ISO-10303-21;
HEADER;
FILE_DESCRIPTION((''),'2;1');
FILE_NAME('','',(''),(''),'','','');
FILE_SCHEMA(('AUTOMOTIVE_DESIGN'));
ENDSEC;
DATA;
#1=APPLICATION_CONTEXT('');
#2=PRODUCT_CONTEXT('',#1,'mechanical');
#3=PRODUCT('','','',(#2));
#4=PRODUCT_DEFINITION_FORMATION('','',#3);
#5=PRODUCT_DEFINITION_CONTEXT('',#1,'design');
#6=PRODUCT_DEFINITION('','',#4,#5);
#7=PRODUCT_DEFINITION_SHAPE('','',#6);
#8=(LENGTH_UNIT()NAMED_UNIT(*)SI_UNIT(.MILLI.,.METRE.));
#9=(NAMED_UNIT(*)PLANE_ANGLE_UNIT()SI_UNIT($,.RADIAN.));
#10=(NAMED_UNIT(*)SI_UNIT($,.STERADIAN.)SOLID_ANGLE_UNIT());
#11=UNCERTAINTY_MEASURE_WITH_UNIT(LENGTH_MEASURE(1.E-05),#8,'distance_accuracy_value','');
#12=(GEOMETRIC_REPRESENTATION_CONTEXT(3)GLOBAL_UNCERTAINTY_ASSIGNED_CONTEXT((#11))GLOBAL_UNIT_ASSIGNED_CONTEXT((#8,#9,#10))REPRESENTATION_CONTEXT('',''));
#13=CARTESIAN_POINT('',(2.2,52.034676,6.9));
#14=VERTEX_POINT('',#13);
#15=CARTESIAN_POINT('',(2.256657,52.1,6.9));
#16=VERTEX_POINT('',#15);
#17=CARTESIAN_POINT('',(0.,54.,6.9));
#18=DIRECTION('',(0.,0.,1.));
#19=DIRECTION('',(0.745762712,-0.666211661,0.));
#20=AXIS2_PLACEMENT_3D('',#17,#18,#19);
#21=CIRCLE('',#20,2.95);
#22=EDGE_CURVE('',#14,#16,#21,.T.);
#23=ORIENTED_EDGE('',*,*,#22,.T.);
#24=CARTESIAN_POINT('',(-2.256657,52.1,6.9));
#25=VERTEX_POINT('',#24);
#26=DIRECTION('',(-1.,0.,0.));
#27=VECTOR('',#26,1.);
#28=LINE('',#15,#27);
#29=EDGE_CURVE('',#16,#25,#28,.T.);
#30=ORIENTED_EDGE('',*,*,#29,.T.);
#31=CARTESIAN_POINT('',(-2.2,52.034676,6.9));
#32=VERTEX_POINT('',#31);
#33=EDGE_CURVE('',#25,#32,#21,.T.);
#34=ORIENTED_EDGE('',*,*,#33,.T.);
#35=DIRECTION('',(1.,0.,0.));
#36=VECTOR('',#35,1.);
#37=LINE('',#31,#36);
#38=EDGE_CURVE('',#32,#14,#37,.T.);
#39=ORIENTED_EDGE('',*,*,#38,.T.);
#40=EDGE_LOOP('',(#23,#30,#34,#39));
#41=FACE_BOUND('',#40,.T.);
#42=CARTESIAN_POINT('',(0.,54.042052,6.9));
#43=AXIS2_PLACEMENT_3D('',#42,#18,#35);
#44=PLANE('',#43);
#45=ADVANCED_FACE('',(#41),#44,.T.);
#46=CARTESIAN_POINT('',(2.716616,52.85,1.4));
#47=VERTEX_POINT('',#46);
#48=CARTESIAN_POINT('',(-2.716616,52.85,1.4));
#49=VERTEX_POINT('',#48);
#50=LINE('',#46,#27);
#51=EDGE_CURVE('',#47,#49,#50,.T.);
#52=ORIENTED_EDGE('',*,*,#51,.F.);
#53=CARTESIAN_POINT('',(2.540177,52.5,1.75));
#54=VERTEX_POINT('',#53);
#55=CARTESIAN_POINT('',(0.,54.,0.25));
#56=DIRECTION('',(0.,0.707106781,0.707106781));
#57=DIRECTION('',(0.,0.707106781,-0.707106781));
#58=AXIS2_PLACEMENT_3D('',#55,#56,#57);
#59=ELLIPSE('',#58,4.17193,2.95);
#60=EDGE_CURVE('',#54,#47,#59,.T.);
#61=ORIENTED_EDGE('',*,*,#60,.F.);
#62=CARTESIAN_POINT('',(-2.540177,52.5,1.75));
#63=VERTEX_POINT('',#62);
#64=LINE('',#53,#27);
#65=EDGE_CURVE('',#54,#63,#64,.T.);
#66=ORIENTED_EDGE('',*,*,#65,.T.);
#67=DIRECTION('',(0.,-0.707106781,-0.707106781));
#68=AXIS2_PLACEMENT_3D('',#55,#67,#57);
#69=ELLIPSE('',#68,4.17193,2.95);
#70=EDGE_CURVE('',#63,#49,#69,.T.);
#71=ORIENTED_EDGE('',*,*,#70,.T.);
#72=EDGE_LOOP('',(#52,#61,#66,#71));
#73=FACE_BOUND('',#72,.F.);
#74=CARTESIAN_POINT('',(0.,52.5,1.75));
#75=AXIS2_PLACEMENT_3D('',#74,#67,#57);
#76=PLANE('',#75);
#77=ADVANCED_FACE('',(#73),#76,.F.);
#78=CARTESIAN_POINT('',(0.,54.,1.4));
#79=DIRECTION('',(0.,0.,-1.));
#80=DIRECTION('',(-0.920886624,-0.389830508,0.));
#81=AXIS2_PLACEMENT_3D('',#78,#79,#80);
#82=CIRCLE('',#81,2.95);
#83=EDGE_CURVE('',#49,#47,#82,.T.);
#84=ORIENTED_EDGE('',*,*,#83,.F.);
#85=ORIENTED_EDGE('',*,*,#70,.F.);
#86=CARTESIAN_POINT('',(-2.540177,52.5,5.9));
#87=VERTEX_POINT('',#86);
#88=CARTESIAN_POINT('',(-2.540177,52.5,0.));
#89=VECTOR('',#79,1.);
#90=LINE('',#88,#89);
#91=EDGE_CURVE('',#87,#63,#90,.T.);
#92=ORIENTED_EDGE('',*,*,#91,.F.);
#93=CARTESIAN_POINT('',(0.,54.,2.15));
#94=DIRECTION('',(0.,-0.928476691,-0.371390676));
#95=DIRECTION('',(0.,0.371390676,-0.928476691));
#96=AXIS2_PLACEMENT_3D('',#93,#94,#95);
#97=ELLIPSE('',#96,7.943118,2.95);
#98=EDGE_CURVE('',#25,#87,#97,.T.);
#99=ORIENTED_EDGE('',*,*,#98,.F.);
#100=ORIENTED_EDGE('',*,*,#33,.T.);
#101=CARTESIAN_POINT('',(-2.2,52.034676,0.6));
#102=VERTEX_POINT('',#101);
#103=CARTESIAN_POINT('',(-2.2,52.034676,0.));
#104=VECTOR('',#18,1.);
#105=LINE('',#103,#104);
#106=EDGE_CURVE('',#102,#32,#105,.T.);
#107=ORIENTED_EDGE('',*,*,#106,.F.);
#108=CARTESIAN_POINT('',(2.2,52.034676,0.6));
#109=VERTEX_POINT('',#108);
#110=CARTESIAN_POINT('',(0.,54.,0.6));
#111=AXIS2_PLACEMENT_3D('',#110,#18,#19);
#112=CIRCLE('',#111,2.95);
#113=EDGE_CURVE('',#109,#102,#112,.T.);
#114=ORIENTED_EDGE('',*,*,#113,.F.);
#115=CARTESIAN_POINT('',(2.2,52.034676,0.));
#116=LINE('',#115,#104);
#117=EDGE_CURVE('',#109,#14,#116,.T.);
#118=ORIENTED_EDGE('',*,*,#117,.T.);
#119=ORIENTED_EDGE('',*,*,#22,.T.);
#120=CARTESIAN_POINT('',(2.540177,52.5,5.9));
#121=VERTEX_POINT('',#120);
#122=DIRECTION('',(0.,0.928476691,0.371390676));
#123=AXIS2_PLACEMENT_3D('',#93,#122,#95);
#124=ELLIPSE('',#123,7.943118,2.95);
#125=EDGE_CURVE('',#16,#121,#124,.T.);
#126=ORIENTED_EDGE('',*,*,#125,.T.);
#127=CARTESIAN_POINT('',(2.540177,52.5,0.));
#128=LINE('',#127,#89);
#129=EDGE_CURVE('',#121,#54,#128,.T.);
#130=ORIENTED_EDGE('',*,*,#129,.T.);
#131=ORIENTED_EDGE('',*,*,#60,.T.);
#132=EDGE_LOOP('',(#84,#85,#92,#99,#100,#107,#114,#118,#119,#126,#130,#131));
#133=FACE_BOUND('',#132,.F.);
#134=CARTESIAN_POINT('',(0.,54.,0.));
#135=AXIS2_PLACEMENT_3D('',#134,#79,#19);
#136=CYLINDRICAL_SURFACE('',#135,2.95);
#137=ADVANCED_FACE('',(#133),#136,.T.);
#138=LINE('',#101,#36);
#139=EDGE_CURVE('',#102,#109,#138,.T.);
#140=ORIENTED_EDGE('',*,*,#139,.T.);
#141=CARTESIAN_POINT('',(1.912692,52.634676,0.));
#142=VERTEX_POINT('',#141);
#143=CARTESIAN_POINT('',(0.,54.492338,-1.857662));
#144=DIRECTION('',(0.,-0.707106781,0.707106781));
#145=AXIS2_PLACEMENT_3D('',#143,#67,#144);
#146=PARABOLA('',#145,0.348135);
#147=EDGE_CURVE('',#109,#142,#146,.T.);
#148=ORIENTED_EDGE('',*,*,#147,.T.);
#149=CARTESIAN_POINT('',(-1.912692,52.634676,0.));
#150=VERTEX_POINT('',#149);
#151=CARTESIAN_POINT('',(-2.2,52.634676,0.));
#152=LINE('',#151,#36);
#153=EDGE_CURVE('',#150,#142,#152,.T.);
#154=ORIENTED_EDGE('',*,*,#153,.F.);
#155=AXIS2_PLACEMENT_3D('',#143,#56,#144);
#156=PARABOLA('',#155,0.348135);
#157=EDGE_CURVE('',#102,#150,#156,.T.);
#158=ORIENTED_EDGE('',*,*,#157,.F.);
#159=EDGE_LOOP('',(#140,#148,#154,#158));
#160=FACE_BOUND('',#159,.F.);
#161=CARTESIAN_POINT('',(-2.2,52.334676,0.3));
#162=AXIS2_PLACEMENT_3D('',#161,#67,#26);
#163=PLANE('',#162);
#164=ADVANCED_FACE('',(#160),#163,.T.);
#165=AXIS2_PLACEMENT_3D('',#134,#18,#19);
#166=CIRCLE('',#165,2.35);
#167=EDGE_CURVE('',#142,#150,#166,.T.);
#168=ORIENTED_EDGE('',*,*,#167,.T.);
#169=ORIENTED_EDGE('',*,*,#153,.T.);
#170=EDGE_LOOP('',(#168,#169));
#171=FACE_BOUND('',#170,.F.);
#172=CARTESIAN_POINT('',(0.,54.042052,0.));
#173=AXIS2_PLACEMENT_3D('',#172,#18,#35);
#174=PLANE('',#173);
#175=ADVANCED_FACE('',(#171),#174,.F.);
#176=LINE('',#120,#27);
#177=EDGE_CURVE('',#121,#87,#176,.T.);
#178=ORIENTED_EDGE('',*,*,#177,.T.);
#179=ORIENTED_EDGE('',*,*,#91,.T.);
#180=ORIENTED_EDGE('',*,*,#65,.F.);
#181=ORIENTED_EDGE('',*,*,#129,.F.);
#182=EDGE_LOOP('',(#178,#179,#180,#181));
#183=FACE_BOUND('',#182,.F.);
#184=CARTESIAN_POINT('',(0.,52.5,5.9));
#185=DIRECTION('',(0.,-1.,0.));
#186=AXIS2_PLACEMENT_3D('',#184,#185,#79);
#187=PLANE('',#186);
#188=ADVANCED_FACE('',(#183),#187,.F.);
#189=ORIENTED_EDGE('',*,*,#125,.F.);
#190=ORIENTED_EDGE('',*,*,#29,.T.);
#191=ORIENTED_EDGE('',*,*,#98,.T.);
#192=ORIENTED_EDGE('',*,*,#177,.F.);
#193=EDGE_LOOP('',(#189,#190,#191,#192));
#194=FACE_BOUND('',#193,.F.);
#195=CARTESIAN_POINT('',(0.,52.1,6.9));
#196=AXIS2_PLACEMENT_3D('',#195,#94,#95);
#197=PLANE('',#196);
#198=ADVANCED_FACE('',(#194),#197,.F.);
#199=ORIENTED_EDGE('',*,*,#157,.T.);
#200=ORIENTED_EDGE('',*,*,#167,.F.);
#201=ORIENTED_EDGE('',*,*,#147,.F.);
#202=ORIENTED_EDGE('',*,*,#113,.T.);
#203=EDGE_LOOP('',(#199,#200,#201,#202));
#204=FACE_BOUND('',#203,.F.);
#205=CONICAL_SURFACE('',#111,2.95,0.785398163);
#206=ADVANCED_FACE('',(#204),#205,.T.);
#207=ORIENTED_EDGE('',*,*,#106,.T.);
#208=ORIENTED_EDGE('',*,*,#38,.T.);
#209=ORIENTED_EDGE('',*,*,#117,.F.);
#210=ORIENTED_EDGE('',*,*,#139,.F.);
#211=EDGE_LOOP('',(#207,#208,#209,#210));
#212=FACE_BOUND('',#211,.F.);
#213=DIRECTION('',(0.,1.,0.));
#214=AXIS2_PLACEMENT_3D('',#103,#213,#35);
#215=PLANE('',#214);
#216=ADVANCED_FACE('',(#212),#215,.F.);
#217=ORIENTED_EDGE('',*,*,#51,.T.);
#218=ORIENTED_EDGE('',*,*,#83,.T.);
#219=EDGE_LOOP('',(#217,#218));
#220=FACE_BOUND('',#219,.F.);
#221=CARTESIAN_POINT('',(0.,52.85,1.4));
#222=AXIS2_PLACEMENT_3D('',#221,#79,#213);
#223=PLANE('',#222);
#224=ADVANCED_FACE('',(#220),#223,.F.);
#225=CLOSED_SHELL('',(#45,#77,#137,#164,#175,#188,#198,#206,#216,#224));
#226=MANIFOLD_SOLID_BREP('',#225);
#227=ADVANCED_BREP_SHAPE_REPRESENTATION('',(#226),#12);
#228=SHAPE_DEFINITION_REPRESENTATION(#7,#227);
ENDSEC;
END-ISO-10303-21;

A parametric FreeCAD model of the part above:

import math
import FreeCAD as App
import Part
import Sketcher
Q = App.Units.Quantity


def edges_at(feature, points):
    """Names of the edges that pass closest to the given points."""
    edges = feature.Shape.Edges
    near = lambda p: min(range(len(edges)), key=lambda i: edges[i].distToShape(Part.Vertex(*p))[0])
    return sorted({f"Edge{near(p) + 1}" for p in points})


def add_polygon(sketch, points):
    """Adds a closed chain of lines whose ends are joined by coincident constraints."""
    first, n = sketch.GeometryCount, len(points)
    for a, b in zip(points, points[1:] + points[:1]):
        sketch.addGeometry(Part.LineSegment(App.Vector(*a, 0), App.Vector(*b, 0)), False)
    for i in range(n):
        sketch.addConstraint(Sketcher.Constraint("Coincident", first + i, 2, first + (i + 1) % n, 1))

doc = App.newDocument("Part")
body = doc.addObject("PartDesign::Body", "Body")

sketch1 = body.newObject("Sketcher::SketchObject", "Sketch")
sketch1.AttachmentSupport = (doc.getObject("XY_Plane"), [""])
sketch1.MapMode = "FlatFace"
sketch1.addGeometry([
    Part.ArcOfCircle(Part.Circle(App.Vector(0, 0, 0), App.Vector(0, 0, 1), 3), math.radians(-42), math.radians(222)),
    Part.LineSegment(App.Vector(-2.2, -2, 0), App.Vector(2.2, -2, 0)),
], False)
sketch1.addConstraint([
    Sketcher.Constraint("Coincident", 0, 1, 1, 2),
    Sketcher.Constraint("Coincident", 1, 1, 0, 2),
    Sketcher.Constraint("Horizontal", 1),
    Sketcher.Constraint("Coincident", 0, 3, -1, 1),
    Sketcher.Constraint("Radius", 0, 2.95),
    Sketcher.Constraint("DistanceX", 1, 1, 1, 2, 4.4),
])
pad1 = body.newObject("PartDesign::Pad", "Pad")
pad1.Profile = sketch1
pad1.Length = 6.9

sketch2 = body.newObject("Sketcher::SketchObject", "Sketch001")
sketch2.AttachmentSupport = (doc.getObject("YZ_Plane"), [""])
sketch2.MapMode = "FlatFace"
add_polygon(sketch2, [(-1.9, 6.9), (-1.5, 5.9), (-1.5, 1.75), (-1.15, 1.4), (5, 1.4), (5, 6.9)])
sketch2.addConstraint([
    Sketcher.Constraint("Vertical", 1),
    Sketcher.Constraint("Horizontal", 3),
    Sketcher.Constraint("Vertical", 4),
    Sketcher.Constraint("Horizontal", 5),
    Sketcher.Constraint("Angle", 2, Q("-45 deg")),
    Sketcher.Constraint("DistanceX", 5, 2, 5, 1, 6.9),
    Sketcher.Constraint("DistanceY", 4, 1, 4, 2, 5.5),
    Sketcher.Constraint("DistanceX", -1, 1, 3, 2, 5.0),
    Sketcher.Constraint("DistanceY", 0, 2, 4, 2, 1.0),
    Sketcher.Constraint("DistanceX", 3, 1, 3, 2, 6.15),
    Sketcher.Constraint("DistanceY", 1, 2, 1, 1, 4.15),
    Sketcher.Constraint("DistanceY", -1, 1, 0, 2, 5.9),
])
pocket1 = body.newObject("PartDesign::Pocket", "Pocket")
pocket1.Profile = sketch2
pocket1.Type = "ThroughAll"
pocket1.Midplane = True
doc.recompute()

chamfer = body.newObject("PartDesign::Chamfer", "Chamfer")
chamfer.Base = (pocket1, edges_at(pocket1, [(0, 2.95, 0), (0, -1.965, 0)]))
chamfer.Size = 0.6
body2 = doc.addObject("PartDesign::Body", "Body001")
doc.recompute()

body.Placement = App.Placement(App.Vector(0, 54, 0), App.Rotation(App.Vector(0, 0, 1), 0))
boolean = body2.newObject("PartDesign::Boolean", "Boolean")
boolean.Type = "Fuse"
boolean.addObjects([body])

doc.recompute()
